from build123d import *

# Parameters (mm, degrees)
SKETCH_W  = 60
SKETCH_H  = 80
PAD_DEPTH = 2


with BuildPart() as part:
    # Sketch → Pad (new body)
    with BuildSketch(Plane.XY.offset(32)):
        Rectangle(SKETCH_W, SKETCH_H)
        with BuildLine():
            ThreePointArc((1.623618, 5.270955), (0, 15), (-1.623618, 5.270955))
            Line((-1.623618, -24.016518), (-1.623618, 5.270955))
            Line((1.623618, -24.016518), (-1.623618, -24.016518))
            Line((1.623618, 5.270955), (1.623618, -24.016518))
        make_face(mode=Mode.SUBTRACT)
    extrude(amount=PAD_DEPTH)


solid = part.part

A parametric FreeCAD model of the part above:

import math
import FreeCAD as App
import Part
import Sketcher
from FreeCAD import Vector


def add_polygon(sketch, points):
    """Adds a closed chain of lines whose ends are joined by coincident constraints."""
    first, n = sketch.GeometryCount, len(points)
    for a, b in zip(points, points[1:] + points[:1]):
        sketch.addGeometry(Part.LineSegment(App.Vector(*a, 0), App.Vector(*b, 0)), False)
    for i in range(n):
        sketch.addConstraint(Sketcher.Constraint("Coincident", first + i, 2, first + (i + 1) % n, 1))

doc = App.newDocument("Part")
params = doc.addObject("Spreadsheet::Sheet", "Params")
for row, (alias, value) in enumerate([
    ("sketch1_radius", "5 mm"),
    ("sketch1_width", "60 mm"),
    ("sketch1_height", "80 mm"),
    ("pad1_length", "2 mm"),
], start=1):
    params.set(f"A{row}", alias)
    params.set(f"B{row}", "=" + value)
    params.setAlias(f"B{row}", alias)

body = doc.addObject("PartDesign::Body", "Body")

sketch1 = body.newObject("Sketcher::SketchObject", "Sketch")
sketch1.AttachmentSupport = (doc.getObject("XY_Plane"), [""])
sketch1.MapMode = "FlatFace"
sketch1.AttachmentOffset = App.Placement(Vector(0, 0, 32), App.Rotation())
add_polygon(sketch1, [(-30, 40), (-30, -40), (30, -40), (30, 40)])
sketch1.addGeometry(Part.ArcOfCircle(Part.Circle(Vector(0, 10, 0), Vector(0, 0, 1), 5), math.radians(-71.05117), math.radians(251.05117)), False)
sketch1.addGeometry(Part.LineSegment(Vector(1.623618, 5.270955, 0), Vector(1.623618, -24.016518, 0)), False)
sketch1.addGeometry(Part.LineSegment(Vector(1.623618, -24.016518, 0), Vector(-1.623618, -24.016518, 0)), False)
sketch1.addGeometry(Part.LineSegment(Vector(-1.623618, -24.016518, 0), Vector(-1.623618, 5.270955, 0)), False)
sketch1.addConstraint([
    Sketcher.Constraint("Coincident", 4, 1, 5, 1),
    Sketcher.Constraint("Coincident", 5, 2, 6, 1),
    Sketcher.Constraint("Coincident", 6, 2, 7, 1),
    Sketcher.Constraint("Coincident", 7, 2, 4, 2),
    Sketcher.Constraint("Vertical", 0),
    Sketcher.Constraint("Horizontal", 1),
    Sketcher.Constraint("Vertical", 2),
    Sketcher.Constraint("Horizontal", 3),
    Sketcher.Constraint("Vertical", 5),
    Sketcher.Constraint("Horizontal", 6),
    Sketcher.Constraint("Vertical", 7),
    Sketcher.Constraint("Symmetric", 0, 2, 2, 2, -1, 1),
    Sketcher.Constraint("Symmetric", 4, 1, 7, 2, -2),
    Sketcher.Constraint("Radius", 4, 5.0),
    Sketcher.Constraint("DistanceX", 1, 1, 1, 2, 60.0),
    Sketcher.Constraint("DistanceY", 0, 2, 0, 1, 80.0),
    Sketcher.Constraint("DistanceY", -1, 1, 4, 3, 10.0),
    Sketcher.Constraint("DistanceX", 6, 2, 6, 1, 3.247236),
    Sketcher.Constraint("DistanceY", 5, 2, 5, 1, 29.287473),
])
sketch1.setExpression("Constraints[17]", "Params.sketch1_radius")
sketch1.setExpression("Constraints[18]", "Params.sketch1_width")
sketch1.setExpression("Constraints[19]", "Params.sketch1_height")
pad1 = body.newObject("PartDesign::Pad", "Pad")
pad1.Profile = sketch1
pad1.setExpression("Length", "Params.pad1_length")

doc.recompute()
